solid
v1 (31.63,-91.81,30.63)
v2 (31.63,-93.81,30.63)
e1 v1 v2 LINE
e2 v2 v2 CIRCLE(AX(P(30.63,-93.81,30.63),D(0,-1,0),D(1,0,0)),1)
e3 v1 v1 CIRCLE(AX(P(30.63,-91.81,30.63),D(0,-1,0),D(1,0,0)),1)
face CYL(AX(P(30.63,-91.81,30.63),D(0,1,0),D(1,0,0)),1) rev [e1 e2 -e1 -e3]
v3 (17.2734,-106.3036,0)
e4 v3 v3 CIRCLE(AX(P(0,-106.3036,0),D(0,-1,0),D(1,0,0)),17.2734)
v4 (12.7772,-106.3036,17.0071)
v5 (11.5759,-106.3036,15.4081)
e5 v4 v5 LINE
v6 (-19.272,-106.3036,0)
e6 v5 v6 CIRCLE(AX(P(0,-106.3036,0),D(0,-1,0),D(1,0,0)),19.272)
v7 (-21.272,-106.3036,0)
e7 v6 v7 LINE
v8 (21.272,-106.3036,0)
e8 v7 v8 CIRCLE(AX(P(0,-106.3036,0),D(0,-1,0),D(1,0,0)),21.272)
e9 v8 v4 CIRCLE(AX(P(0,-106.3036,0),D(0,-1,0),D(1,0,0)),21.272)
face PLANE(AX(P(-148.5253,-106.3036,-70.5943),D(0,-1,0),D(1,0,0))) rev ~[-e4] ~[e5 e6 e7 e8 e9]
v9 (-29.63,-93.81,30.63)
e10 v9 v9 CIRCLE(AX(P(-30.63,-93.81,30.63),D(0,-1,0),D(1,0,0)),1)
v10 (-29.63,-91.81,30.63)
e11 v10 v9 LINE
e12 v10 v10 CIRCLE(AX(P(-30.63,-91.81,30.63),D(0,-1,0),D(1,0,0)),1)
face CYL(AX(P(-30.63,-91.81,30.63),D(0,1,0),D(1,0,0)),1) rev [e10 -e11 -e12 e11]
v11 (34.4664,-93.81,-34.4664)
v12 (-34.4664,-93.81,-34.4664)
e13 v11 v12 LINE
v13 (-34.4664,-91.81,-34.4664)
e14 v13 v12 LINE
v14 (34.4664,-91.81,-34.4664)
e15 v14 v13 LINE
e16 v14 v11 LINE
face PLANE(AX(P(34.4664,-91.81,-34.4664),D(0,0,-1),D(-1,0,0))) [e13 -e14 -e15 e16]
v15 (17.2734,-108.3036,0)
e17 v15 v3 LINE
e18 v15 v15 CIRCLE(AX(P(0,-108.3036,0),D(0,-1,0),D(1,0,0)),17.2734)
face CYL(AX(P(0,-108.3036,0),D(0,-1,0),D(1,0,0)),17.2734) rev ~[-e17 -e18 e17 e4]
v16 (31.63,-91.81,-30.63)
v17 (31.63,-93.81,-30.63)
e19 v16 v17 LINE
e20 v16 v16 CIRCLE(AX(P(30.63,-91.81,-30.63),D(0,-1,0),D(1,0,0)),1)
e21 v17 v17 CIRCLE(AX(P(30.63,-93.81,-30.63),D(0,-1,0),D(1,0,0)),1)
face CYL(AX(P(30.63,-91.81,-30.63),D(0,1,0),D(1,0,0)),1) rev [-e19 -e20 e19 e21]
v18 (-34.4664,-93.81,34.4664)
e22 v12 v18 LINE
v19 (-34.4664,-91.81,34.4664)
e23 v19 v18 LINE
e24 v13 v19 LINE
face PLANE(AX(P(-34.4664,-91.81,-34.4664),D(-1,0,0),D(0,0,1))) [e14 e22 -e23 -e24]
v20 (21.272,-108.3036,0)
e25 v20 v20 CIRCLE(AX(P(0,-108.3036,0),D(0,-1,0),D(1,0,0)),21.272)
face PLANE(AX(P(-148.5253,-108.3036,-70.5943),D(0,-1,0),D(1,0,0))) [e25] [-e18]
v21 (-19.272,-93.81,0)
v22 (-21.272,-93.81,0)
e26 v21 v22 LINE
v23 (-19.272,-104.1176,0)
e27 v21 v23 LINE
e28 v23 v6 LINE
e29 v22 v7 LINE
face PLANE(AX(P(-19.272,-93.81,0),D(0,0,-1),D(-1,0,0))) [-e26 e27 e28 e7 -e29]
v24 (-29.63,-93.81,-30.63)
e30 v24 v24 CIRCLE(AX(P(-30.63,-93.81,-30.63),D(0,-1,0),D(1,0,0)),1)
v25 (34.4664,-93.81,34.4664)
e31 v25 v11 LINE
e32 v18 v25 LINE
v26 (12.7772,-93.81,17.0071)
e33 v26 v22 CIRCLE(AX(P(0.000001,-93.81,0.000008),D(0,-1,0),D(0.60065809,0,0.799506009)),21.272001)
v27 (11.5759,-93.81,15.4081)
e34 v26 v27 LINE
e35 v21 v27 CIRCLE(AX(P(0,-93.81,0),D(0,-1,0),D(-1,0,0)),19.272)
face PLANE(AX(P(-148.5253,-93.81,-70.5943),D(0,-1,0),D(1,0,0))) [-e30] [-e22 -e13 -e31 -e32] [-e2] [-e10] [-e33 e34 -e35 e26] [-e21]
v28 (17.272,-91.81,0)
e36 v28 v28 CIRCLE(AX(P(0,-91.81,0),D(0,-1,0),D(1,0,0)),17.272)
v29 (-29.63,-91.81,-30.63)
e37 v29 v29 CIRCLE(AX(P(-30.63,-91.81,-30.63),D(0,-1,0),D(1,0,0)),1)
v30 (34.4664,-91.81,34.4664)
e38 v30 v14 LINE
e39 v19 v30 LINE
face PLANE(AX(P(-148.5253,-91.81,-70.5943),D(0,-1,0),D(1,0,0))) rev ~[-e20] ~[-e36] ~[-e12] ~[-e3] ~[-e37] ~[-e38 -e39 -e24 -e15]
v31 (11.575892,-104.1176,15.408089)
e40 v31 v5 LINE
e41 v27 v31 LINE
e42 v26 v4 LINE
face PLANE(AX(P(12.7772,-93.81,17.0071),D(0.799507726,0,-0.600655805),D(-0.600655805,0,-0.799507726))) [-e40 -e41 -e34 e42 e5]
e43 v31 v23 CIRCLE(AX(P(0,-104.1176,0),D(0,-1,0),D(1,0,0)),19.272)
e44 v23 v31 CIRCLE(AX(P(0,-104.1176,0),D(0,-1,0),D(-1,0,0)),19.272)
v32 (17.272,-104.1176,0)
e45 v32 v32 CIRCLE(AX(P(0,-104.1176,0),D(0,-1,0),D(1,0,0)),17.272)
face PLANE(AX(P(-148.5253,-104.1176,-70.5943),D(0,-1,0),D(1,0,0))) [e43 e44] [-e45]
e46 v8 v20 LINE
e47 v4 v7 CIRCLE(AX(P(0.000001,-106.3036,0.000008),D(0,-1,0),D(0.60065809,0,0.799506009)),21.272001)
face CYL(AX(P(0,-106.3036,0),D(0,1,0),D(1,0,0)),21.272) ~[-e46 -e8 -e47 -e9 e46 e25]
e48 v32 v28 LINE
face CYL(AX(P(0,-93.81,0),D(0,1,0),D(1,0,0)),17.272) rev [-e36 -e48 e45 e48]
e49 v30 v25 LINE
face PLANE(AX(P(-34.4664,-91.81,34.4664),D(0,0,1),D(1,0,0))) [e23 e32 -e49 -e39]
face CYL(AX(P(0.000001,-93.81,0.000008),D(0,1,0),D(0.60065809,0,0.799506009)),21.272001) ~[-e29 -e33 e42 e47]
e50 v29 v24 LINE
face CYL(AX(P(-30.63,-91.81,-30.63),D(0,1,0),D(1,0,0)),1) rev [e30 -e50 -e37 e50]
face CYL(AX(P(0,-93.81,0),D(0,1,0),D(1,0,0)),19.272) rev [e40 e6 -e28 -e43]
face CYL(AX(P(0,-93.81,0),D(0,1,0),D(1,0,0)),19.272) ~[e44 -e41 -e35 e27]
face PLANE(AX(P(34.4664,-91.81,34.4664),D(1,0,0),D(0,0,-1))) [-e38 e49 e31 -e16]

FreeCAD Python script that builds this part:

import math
import FreeCAD as App
import Part
import Sketcher
from FreeCAD import Vector
Q = App.Units.Quantity

doc = App.newDocument("Part")
body = doc.addObject("PartDesign::Body", "Body")

# Sketch on XZ plane
sketch1 = body.newObject("Sketcher::SketchObject", "Sketch")
sketch1.AttachmentSupport = (doc.getObject("XZ_Plane"), [""])
sketch1.MapMode = "FlatFace"
sketch1.AttachmentOffset = App.Placement(Vector(0, 0, 91.81), App.Rotation())
sketch1.addGeometry(Part.LineSegment(Vector(-34.5, -34.5, 0), Vector(34.5, -34.5, 0)), False)
sketch1.addGeometry(Part.LineSegment(Vector(34.5, -34.5, 0), Vector(34.5, 34.5, 0)), False)
sketch1.addGeometry(Part.LineSegment(Vector(34.5, 34.5, 0), Vector(-34.5, 34.5, 0)), False)
sketch1.addGeometry(Part.LineSegment(Vector(-34.5, 34.5, 0), Vector(-34.5, -34.5, 0)), False)
sketch1.addGeometry(Part.Circle(Vector(-30.6, -30.6, 0), Vector(0, 0, 1), 1), False)
sketch1.addGeometry(Part.Circle(Vector(30.6, -30.6, 0), Vector(0, 0, 1), 1), False)
sketch1.addGeometry(Part.Circle(Vector(-30.6, 30.6, 0), Vector(0, 0, 1), 1), False)
sketch1.addGeometry(Part.Circle(Vector(30.6, 30.6, 0), Vector(0, 0, 1), 1), False)
sketch1.addConstraint(Sketcher.Constraint("Coincident", 0, 2, 1, 1))
sketch1.addConstraint(Sketcher.Constraint("Coincident", 1, 2, 2, 1))
sketch1.addConstraint(Sketcher.Constraint("Coincident", 2, 2, 3, 1))
sketch1.addConstraint(Sketcher.Constraint("Coincident", 3, 2, 0, 1))
sketch1.addConstraint(Sketcher.Constraint("Horizontal", 0))
sketch1.addConstraint(Sketcher.Constraint("Vertical", 1))
sketch1.addConstraint(Sketcher.Constraint("Horizontal", 2))
sketch1.addConstraint(Sketcher.Constraint("Vertical", 3))
sketch1.addConstraint(Sketcher.Constraint("Equal", 4, 5))
sketch1.addConstraint(Sketcher.Constraint("Equal", 5, 6))
sketch1.addConstraint(Sketcher.Constraint("Equal", 6, 7))
sketch1.addConstraint(Sketcher.Constraint("Symmetric", 5, 3, 6, 3, -1, 1))
sketch1.addConstraint(Sketcher.Constraint("Symmetric", 4, 3, 7, 3, -1, 1))
sketch1.addConstraint(Sketcher.Constraint("Symmetric", 0, 2, 2, 2, -1, 1))
sketch1.addConstraint(Sketcher.Constraint("Symmetric", 4, 3, 5, 3, -2))
sketch1.addConstraint(Sketcher.Constraint("Equal", 2, 1))
sketch1.addConstraint(Sketcher.Constraint("Diameter", 4, Q("2 mm")))
sketch1.addConstraint(Sketcher.Constraint("DistanceX", 4, 3, -1, 1, Q("30.63 mm")))
sketch1.addConstraint(Sketcher.Constraint("DistanceY", 4, 3, -1, 1, Q("30.63 mm")))
sketch1.addConstraint(Sketcher.Constraint("DistanceX", 0, 1, 0, 2, Q("68.9328 mm")))
pad1 = body.newObject("PartDesign::Pad", "Pad")
pad1.Profile = sketch1
pad1.Length = 2

# Sketch on XZ plane
sketch2 = body.newObject("Sketcher::SketchObject", "Sketch001")
sketch2.AttachmentSupport = (doc.getObject("XZ_Plane"), [""])
sketch2.MapMode = "FlatFace"
sketch2.AttachmentOffset = App.Placement(Vector(0, 0, 93.81), App.Rotation())
sketch2.addGeometry(Part.Circle(Vector(0, 0, 0), Vector(0, 0, 1), 17), False)
sketch2.addConstraint(Sketcher.Constraint("Coincident", 0, 3, -1, 1))
sketch2.addConstraint(Sketcher.Constraint("Diameter", 0, Q("34.544 mm")))
pocket1 = body.newObject("PartDesign::Pocket", "Pocket")
pocket1.Profile = sketch2
pocket1.Length = 2

# Sketch on XZ plane
sketch3 = body.newObject("Sketcher::SketchObject", "Sketch002")
sketch3.AttachmentSupport = (doc.getObject("XZ_Plane"), [""])
sketch3.MapMode = "FlatFace"
sketch3.AttachmentOffset = App.Placement(Vector(0, 0, 93.81), App.Rotation())
sketch3.addGeometry(Part.Circle(Vector(0, 0, 0), Vector(0, 0, 1), 19), False)
sketch3.addGeometry(Part.Circle(Vector(0, 0, 0), Vector(0, 0, 1), 17), False)
sketch3.addConstraint(Sketcher.Constraint("Coincident", 0, 3, -1, 1))
sketch3.addConstraint(Sketcher.Constraint("Coincident", 1, 3, -1, 1))
sketch3.addConstraint(Sketcher.Constraint("Diameter", 0, Q("38.544 mm")))
sketch3.addConstraint(Sketcher.Constraint("Diameter", 1, Q("34.544 mm")))
pad2 = body.newObject("PartDesign::Pad", "Pad001")
pad2.Profile = sketch3
pad2.Length = 10.3076

# Sketch on XZ plane
sketch4 = body.newObject("Sketcher::SketchObject", "Sketch003")
sketch4.AttachmentSupport = (doc.getObject("XZ_Plane"), [""])
sketch4.MapMode = "FlatFace"
sketch4.AttachmentOffset = App.Placement(Vector(0, 0, 93.81), App.Rotation())
sketch4.addGeometry(Part.ArcOfCircle(Part.Circle(Vector(0, 0, 0), Vector(0, 0, 1), 19.3), math.radians(53), math.radians(180)), False)
sketch4.addGeometry(Part.LineSegment(Vector(11.6, 15.4, 0), Vector(12.8, 17, 0)), False)
sketch4.addGeometry(Part.ArcOfCircle(Part.Circle(Vector(0, 0, 0), Vector(0, 0, 1), 21.3), math.radians(53), math.radians(180)), False)
sketch4.addGeometry(Part.LineSegment(Vector(-21.3, 0, 0), Vector(-19.3, 0, 0)), False)
sketch4.addConstraint(Sketcher.Constraint("Coincident", 0, 1, 1, 1))
sketch4.addConstraint(Sketcher.Constraint("Coincident", 1, 2, 2, 1))
sketch4.addConstraint(Sketcher.Constraint("Coincident", 2, 2, 3, 1))
sketch4.addConstraint(Sketcher.Constraint("Coincident", 3, 2, 0, 2))
sketch4.addConstraint(Sketcher.Constraint("Horizontal", 3))
sketch4.addConstraint(Sketcher.Constraint("Coincident", 0, 3, -1, 1))
sketch4.addConstraint(Sketcher.Constraint("Coincident", 2, 3, -1, 1))
sketch4.addConstraint(Sketcher.Constraint("PointOnObject", 2, 2, -1))
sketch4.addConstraint(Sketcher.Constraint("DistanceX", 3, 1, 3, 2, Q("2 mm")))
sketch4.addConstraint(Sketcher.Constraint("Radius", 0, Q("19.272 mm")))
sketch4.addConstraint(Sketcher.Constraint("DistanceY", 0, 1, 1, 2, Q("1.599 mm")))
sketch4.addConstraint(Sketcher.Constraint("DistanceX", -1, 1, 0, 1, Q("11.576 mm")))
pad3 = body.newObject("PartDesign::Pad", "Pad002")
pad3.Profile = sketch4
pad3.Length = 12.4936

# Sketch on XZ plane
sketch5 = body.newObject("Sketcher::SketchObject", "Sketch004")
sketch5.AttachmentSupport = (doc.getObject("XZ_Plane"), [""])
sketch5.MapMode = "FlatFace"
sketch5.AttachmentOffset = App.Placement(Vector(0, 0, 106.3036), App.Rotation())
sketch5.addGeometry(Part.Circle(Vector(0, 0, 0), Vector(0, 0, 1), 21), False)
sketch5.addConstraint(Sketcher.Constraint("Coincident", 0, 3, -1, 1))
sketch5.addConstraint(Sketcher.Constraint("Diameter", 0, Q("42.544 mm")))
pad4 = body.newObject("PartDesign::Pad", "Pad003")
pad4.Profile = sketch5
pad4.Length = 2

# Sketch on XZ plane
sketch6 = body.newObject("Sketcher::SketchObject", "Sketch005")
sketch6.AttachmentSupport = (doc.getObject("XZ_Plane"), [""])
sketch6.MapMode = "FlatFace"
sketch6.AttachmentOffset = App.Placement(Vector(0, 0, 108.3036), App.Rotation())
sketch6.addGeometry(Part.Circle(Vector(0, 0, 0), Vector(0, 0, 1), 17), False)
sketch6.addConstraint(Sketcher.Constraint("Coincident", 0, 3, -1, 1))
sketch6.addConstraint(Sketcher.Constraint("Diameter", 0, Q("34.5468 mm")))
pocket2 = body.newObject("PartDesign::Pocket", "Pocket001")
pocket2.Profile = sketch6
pocket2.Length = 2

doc.recompute()
